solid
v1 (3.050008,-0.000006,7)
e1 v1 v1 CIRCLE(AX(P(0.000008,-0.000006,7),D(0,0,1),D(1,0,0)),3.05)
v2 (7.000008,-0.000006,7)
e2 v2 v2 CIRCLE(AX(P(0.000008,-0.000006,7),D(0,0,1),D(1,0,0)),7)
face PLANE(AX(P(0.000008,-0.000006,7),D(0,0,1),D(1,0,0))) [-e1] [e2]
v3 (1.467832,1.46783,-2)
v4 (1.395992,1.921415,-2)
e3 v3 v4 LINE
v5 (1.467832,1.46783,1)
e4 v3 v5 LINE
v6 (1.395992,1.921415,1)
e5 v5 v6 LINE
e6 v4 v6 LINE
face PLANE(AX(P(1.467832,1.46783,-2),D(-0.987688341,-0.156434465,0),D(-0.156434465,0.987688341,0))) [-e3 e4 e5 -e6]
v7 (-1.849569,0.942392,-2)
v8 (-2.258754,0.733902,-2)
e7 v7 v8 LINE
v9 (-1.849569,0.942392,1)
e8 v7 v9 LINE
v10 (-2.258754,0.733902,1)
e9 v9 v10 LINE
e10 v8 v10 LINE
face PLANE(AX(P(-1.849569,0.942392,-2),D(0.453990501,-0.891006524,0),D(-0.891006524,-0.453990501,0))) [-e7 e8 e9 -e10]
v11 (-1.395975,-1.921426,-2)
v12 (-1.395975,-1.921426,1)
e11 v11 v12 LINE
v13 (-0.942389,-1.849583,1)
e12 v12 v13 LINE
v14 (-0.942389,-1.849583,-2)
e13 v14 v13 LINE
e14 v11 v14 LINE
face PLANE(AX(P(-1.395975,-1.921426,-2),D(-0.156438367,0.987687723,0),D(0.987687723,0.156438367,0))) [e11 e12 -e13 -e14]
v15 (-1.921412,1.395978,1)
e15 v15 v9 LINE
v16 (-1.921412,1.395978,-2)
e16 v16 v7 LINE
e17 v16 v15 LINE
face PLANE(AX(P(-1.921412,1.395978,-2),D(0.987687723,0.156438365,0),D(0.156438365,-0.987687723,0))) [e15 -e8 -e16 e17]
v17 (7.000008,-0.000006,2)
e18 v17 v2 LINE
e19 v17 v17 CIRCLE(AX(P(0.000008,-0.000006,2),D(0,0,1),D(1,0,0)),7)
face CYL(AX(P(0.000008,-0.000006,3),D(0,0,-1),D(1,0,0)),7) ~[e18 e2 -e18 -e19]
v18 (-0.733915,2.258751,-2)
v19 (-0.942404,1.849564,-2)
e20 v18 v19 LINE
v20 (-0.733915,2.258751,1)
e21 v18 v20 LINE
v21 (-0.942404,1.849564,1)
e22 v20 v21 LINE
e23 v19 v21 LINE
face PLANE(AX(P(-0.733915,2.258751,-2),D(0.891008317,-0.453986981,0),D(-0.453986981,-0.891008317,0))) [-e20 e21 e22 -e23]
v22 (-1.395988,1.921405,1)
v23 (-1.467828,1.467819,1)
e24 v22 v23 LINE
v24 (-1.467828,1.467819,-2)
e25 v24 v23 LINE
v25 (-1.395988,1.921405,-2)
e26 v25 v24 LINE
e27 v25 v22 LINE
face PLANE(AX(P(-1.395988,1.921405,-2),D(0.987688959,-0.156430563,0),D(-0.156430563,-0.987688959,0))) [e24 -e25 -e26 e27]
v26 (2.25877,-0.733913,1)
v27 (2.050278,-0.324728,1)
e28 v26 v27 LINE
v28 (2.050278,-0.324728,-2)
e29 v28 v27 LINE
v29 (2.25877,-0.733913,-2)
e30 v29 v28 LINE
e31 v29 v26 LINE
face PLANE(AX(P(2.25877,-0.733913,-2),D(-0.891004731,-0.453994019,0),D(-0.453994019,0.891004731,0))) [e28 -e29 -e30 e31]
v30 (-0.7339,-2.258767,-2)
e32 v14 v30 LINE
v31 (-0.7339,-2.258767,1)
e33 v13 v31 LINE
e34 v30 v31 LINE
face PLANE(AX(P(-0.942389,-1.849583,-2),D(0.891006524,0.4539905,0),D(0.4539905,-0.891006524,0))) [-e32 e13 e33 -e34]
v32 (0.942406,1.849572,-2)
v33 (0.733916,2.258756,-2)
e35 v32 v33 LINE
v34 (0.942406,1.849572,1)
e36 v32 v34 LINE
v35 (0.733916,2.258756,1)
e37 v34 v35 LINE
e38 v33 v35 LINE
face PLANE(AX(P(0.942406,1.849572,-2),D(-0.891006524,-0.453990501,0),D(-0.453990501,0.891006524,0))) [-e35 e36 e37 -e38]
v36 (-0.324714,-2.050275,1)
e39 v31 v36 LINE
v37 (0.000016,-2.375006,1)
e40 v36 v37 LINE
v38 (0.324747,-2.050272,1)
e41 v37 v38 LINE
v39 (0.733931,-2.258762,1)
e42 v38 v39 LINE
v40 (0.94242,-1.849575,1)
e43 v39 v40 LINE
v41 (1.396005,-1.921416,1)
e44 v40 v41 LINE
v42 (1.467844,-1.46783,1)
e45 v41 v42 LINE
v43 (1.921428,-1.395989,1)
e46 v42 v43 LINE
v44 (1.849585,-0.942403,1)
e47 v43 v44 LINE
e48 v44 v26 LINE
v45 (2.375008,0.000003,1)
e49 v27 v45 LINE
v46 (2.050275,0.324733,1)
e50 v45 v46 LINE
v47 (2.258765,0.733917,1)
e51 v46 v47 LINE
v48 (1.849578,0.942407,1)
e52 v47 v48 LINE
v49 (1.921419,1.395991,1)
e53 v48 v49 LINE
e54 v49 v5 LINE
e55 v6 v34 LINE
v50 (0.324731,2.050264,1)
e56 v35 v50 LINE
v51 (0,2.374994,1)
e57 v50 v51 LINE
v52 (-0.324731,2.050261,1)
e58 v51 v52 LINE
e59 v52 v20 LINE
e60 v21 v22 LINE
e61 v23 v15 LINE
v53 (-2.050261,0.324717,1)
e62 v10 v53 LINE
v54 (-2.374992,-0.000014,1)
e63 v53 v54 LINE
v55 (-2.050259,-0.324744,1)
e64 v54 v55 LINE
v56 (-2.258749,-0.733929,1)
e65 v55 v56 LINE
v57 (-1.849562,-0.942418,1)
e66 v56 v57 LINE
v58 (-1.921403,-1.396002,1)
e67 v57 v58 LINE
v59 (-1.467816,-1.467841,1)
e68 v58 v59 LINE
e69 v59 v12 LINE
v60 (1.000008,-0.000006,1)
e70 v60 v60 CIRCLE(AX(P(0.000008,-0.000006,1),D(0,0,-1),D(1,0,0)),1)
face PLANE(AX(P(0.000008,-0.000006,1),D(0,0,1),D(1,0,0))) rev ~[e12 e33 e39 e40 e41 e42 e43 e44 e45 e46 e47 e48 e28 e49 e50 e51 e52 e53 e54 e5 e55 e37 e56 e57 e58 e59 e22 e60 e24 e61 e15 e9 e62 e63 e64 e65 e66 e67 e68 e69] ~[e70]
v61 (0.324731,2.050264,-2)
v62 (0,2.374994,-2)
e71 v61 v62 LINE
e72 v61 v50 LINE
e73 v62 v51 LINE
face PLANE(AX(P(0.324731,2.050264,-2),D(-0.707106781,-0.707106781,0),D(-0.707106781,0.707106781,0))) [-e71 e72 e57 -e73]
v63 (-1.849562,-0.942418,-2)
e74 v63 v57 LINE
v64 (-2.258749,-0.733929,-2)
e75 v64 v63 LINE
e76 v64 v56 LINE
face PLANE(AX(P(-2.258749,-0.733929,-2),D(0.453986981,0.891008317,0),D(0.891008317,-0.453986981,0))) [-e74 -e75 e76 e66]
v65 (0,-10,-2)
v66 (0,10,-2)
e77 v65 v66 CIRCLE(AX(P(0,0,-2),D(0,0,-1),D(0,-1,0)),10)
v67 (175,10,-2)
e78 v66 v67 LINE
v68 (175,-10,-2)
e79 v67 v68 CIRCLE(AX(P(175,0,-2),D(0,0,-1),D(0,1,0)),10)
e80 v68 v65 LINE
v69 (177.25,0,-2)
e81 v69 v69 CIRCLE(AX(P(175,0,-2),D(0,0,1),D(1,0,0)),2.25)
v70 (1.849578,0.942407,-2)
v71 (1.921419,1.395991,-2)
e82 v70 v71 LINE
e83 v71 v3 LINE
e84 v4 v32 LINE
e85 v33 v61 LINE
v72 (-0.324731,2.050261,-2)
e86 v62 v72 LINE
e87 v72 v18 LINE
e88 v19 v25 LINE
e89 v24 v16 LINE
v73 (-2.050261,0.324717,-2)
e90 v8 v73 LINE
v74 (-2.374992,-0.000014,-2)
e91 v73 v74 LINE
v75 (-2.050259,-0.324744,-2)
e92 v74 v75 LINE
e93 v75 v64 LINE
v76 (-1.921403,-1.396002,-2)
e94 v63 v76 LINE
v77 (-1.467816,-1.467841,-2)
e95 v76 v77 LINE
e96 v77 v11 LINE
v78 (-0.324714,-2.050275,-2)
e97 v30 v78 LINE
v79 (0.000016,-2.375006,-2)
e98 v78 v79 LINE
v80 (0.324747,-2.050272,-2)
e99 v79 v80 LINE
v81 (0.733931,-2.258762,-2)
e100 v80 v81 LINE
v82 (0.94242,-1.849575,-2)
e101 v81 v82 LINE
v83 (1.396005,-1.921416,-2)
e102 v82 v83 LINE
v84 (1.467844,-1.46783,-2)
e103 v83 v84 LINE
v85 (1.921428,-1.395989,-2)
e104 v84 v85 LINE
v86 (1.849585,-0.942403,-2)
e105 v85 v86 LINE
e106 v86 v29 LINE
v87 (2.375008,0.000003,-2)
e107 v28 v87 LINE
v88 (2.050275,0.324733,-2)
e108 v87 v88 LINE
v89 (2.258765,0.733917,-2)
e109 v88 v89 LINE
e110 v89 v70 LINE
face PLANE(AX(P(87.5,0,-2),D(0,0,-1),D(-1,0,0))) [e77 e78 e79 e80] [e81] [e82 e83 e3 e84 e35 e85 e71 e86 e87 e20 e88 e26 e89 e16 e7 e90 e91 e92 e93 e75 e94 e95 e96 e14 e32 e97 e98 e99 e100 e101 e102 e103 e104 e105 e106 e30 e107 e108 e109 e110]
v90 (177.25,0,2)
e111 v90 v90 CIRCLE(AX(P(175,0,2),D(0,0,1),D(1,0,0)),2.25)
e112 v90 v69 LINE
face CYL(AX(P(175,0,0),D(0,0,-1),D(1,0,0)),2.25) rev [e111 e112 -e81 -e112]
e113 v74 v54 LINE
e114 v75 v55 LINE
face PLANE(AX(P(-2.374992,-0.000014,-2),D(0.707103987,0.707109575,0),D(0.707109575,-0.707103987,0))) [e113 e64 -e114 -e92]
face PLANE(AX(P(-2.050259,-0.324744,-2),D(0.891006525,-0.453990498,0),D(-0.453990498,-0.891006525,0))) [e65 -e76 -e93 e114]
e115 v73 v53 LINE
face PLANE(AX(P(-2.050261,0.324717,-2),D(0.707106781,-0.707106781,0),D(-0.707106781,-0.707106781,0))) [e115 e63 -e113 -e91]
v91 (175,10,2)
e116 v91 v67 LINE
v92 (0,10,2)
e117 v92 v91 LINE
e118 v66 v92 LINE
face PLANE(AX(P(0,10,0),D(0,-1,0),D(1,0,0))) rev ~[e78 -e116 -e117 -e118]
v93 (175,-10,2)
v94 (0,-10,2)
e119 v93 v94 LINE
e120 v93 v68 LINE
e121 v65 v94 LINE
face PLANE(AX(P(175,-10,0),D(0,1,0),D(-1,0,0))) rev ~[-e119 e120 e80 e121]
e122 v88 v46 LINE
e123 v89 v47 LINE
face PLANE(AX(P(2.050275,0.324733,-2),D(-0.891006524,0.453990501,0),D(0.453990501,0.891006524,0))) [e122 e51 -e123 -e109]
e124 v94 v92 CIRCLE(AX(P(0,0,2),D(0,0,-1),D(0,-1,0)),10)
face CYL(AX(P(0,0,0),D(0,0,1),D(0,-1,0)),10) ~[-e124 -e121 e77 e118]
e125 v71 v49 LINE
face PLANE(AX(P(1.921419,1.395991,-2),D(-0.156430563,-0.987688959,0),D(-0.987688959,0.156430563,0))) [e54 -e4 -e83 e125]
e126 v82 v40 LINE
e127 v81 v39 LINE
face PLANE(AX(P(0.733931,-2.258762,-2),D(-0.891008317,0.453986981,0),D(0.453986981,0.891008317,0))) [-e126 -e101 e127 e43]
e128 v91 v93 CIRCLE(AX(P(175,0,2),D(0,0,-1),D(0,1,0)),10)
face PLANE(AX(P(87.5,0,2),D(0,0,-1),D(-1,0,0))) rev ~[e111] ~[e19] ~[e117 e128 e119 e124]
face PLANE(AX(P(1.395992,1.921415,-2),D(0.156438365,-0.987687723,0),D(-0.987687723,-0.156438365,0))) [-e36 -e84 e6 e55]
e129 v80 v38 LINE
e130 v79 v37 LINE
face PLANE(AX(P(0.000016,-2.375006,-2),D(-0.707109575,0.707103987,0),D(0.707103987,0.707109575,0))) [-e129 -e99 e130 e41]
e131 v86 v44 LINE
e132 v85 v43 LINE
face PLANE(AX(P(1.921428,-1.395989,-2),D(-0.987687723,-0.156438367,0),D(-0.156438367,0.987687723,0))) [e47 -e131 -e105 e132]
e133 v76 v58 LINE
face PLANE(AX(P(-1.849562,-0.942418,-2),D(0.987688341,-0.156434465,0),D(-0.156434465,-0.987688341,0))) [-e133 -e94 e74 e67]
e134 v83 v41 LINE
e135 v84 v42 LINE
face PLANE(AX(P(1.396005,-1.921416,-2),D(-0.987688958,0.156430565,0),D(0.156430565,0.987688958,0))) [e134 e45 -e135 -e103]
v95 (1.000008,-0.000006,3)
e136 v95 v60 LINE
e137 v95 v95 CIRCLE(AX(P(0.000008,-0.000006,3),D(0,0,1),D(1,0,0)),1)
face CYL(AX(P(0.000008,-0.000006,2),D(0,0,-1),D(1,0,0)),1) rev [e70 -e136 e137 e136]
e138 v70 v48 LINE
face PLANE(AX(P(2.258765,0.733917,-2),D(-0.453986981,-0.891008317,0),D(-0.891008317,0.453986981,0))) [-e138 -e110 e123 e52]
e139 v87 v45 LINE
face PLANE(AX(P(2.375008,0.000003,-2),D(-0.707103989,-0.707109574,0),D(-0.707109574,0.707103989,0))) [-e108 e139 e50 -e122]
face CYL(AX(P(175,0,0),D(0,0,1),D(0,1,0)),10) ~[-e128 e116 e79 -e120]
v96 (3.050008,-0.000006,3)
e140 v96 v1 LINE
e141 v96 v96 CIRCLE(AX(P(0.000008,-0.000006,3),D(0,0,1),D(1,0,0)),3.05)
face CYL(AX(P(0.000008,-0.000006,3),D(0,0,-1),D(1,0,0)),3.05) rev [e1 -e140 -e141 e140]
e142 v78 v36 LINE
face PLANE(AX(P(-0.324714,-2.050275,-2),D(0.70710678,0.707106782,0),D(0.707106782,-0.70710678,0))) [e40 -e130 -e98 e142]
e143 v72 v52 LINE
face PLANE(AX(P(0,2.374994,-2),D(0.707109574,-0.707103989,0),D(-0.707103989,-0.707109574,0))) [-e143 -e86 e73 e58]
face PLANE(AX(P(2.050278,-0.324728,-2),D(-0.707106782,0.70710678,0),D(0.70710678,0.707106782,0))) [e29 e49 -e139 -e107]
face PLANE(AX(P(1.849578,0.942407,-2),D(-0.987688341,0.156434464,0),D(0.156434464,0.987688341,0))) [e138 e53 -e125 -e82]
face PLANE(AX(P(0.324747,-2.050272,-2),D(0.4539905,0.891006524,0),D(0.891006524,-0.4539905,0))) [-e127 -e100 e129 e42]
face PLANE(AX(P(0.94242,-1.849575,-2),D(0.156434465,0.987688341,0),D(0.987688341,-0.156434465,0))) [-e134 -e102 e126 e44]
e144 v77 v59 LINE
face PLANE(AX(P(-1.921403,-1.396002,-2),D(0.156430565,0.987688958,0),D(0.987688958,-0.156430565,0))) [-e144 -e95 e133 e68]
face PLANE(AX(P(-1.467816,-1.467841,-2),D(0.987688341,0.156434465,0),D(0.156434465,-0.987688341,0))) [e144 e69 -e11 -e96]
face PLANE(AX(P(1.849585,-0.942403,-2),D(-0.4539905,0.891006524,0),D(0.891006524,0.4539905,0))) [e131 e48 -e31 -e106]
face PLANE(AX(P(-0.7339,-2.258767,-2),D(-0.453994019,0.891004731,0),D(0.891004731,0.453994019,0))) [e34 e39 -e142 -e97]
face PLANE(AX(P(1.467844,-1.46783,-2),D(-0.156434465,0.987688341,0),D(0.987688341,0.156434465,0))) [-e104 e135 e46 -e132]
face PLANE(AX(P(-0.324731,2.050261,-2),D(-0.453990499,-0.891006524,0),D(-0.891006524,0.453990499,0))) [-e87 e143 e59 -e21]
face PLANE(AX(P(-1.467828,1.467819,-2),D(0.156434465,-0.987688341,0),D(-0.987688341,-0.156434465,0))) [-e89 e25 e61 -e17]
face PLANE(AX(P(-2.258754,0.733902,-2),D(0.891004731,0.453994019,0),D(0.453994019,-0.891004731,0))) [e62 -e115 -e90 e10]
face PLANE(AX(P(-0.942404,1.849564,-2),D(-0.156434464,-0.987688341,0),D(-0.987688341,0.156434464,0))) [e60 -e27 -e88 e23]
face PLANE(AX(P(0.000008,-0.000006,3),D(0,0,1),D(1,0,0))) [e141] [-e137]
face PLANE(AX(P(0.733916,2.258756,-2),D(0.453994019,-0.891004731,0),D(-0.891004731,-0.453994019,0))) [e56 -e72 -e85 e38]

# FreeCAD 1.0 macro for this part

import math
import FreeCAD as App
import Part
import Sketcher

V = App.Vector
Q = App.Units.Quantity


def add_polygon(sketch, points):
    """Adds a closed chain of lines whose ends are joined by coincident constraints."""
    first, n = sketch.GeometryCount, len(points)
    for a, b in zip(points, points[1:] + points[:1]):
        sketch.addGeometry(Part.LineSegment(App.Vector(*a, 0), App.Vector(*b, 0)), False)
    for i in range(n):
        sketch.addConstraint(Sketcher.Constraint("Coincident", first + i, 2, first + (i + 1) % n, 1))

doc = App.newDocument("Part")
params = doc.addObject("Spreadsheet::Sheet", "Params")
for row, (alias, value) in enumerate([
    ("sketch1_diameter", "2 mm"),
    ("sketch1_radius", "10 mm"),
    ("sketch1_diameter2", "4.5 mm"),
    ("sketch1_width", "175 mm"),
    ("pad1_length", "4 mm"),
    ("sketch2_diameter", "14 mm"),
    ("sketch2_diameter2", "2 mm"),
    ("pad2_length", "1 mm"),
    ("sketch3_diameter", "14 mm"),
    ("sketch3_diameter2", "6.1 mm"),
    ("pad3_length", "4 mm"),
    ("pocket1_length", "3 mm"),
], start=1):
    params.set(f"A{row}", alias)
    params.set(f"B{row}", "=" + value)
    params.setAlias(f"B{row}", alias)

body = doc.addObject("PartDesign::Body", "Body")

# Sketch on XY plane
sketch1 = doc.addObject("Sketcher::SketchObject", "Sketch")
body.addObject(sketch1)
sketch1.AttachmentSupport = (doc.XY_Plane, [""])
sketch1.MapMode = "FlatFace"
sketch1.addGeometry([
    Part.LineSegment(V(175, 10, 0), V(0, 10, 0)),  # 0
    Part.ArcOfCircle(Part.Circle(V(0, 0, 0), V(0, 0, 1), 10), math.radians(90), math.radians(270)),  # 1
    Part.LineSegment(V(0, -10, 0), V(175, -10, 0)),  # 2
    Part.ArcOfCircle(Part.Circle(V(175, 0, 0), V(0, 0, 1), 10), math.radians(-90), math.radians(90)),  # 3
    Part.Circle(V(0, 0, 0), V(0, 0, 1), 1),  # 4
    Part.Circle(V(175, 0, 0), V(0, 0, 1), 2.2),  # 5
], False)
sketch1.addConstraint([
    Sketcher.Constraint("Tangent", 0, 2, 1, 1),
    Sketcher.Constraint("Tangent", 1, 2, 2, 1),
    Sketcher.Constraint("Tangent", 2, 2, 3, 1),
    Sketcher.Constraint("Tangent", 3, 2, 0, 1),
    Sketcher.Constraint("Horizontal", 0),
    Sketcher.Constraint("Horizontal", 2),
    Sketcher.Constraint("Coincident", 1, 3, -1, 1),
    Sketcher.Constraint("Coincident", 4, 3, -1, 1),
    Sketcher.Constraint("Coincident", 5, 3, 3, 3),
    Sketcher.Constraint("Diameter", 4, Q("2 mm")),
    Sketcher.Constraint("Radius", 1, Q("10 mm")),
    Sketcher.Constraint("Diameter", 5, Q("4.5 mm")),
    Sketcher.Constraint("DistanceX", 0, 2, 0, 1, Q("175 mm")),
])
sketch1.setExpression("Constraints[9]", "Params.sketch1_diameter")
sketch1.setExpression("Constraints[10]", "Params.sketch1_radius")
sketch1.setExpression("Constraints[11]", "Params.sketch1_diameter2")
sketch1.setExpression("Constraints[12]", "Params.sketch1_width")
pad1 = doc.addObject("PartDesign::Pad", "Pad")
body.addObject(pad1)
pad1.Profile = sketch1
pad1.setExpression("Length", "Params.pad1_length")
pad1.Midplane = True

# Sketch on XY plane
sketch2 = doc.addObject("Sketcher::SketchObject", "Sketch001")
body.addObject(sketch2)
sketch2.AttachmentSupport = (doc.XY_Plane, [""])
sketch2.MapMode = "FlatFace"
sketch2.AttachmentOffset = App.Placement(V(0, 0, 2), App.Rotation())
sketch2.addGeometry([
    Part.Circle(V(0, 0, 0), V(0, 0, 1), 7),
    Part.Circle(V(0, 0, 0), V(0, 0, 1), 1),
], False)
sketch2.addConstraint([
    Sketcher.Constraint("Coincident", 0, 3, -1, 1),
    Sketcher.Constraint("Coincident", 1, 3, -1, 1),
    Sketcher.Constraint("Diameter", 0, Q("14 mm")),
    Sketcher.Constraint("Diameter", 1, Q("2 mm")),
])
sketch2.setExpression("Constraints[2]", "Params.sketch2_diameter")
sketch2.setExpression("Constraints[3]", "Params.sketch2_diameter2")
pad2 = doc.addObject("PartDesign::Pad", "Pad001")
body.addObject(pad2)
pad2.Profile = sketch2
pad2.setExpression("Length", "Params.pad2_length")

# Sketch on XY plane
sketch3 = doc.addObject("Sketcher::SketchObject", "Sketch002")
body.addObject(sketch3)
sketch3.AttachmentSupport = (doc.XY_Plane, [""])
sketch3.MapMode = "FlatFace"
sketch3.AttachmentOffset = App.Placement(V(0, 0, 3), App.Rotation())
sketch3.addGeometry([
    Part.Circle(V(0, 0, 0), V(0, 0, 1), 7),
    Part.Circle(V(0, 0, 0), V(0, 0, 1), 3),
], False)
sketch3.addConstraint([
    Sketcher.Constraint("Coincident", 0, 3, -1, 1),
    Sketcher.Constraint("Coincident", 1, 3, -1, 1),
    Sketcher.Constraint("Diameter", 0, Q("14 mm")),
    Sketcher.Constraint("Diameter", 1, Q("6.1 mm")),
])
sketch3.setExpression("Constraints[2]", "Params.sketch3_diameter")
sketch3.setExpression("Constraints[3]", "Params.sketch3_diameter2")
pad3 = doc.addObject("PartDesign::Pad", "Pad002")
body.addObject(pad3)
pad3.Profile = sketch3
pad3.setExpression("Length", "Params.pad3_length")

# Sketch on XY plane
sketch4 = doc.addObject("Sketcher::SketchObject", "Sketch003")
body.addObject(sketch4)
sketch4.AttachmentSupport = (doc.XY_Plane, [""])
sketch4.MapMode = "FlatFace"
sketch4.AttachmentOffset = App.Placement(V(0, 0, -2), App.Rotation())
add_polygon(sketch4, [(0, 2.37), (0.32, 2.05), (0.73, 2.26), (0.94, 1.85), (1.4, 1.92), (1.47, 1.47), (1.92, 1.4), (1.85, 0.94), (2.26, 0.73), (2.05, 0.32), (2.38, 0), (2.05, -0.32), (2.26, -0.73), (1.85, -0.94), (1.92, -1.4), (1.47, -1.47), (1.4, -1.92), (0.94, -1.85), (0.73, -2.26), (0.32, -2.05), (0, -2.38), (-0.32, -2.05), (-0.73, -2.26), (-0.94, -1.85), (-1.4, -1.92), (-1.47, -1.47), (-1.92, -1.4), (-1.85, -0.94), (-2.26, -0.73), (-2.05, -0.32), (-2.37, 0), (-2.05, 0.32), (-2.26, 0.73), (-1.85, 0.94), (-1.92, 1.4), (-1.47, 1.47), (-1.4, 1.92), (-0.94, 1.85), (-0.73, 2.26), (-0.32, 2.05)])  # lines 0-39
sketch4.addConstraint([
    Sketcher.Constraint("Symmetric", 2, 2, 36, 2, -2),
    Sketcher.Constraint("Symmetric", 1, 2, 37, 2, -2),
    Sketcher.Constraint("Symmetric", 0, 2, 38, 2, -2),
    Sketcher.Constraint("Symmetric", 8, 2, 10, 2, -1),
    Sketcher.Constraint("Symmetric", 7, 2, 11, 2, -1),
    Sketcher.Constraint("Symmetric", 6, 2, 12, 2, -1),
    Sketcher.Constraint("Symmetric", 5, 2, 13, 2, -1),
    Sketcher.Constraint("PointOnObject", 39, 2, -2),
    Sketcher.Constraint("Perpendicular", 0, 10),
    Sketcher.Constraint("Perpendicular", 1, 11),
    Sketcher.Constraint("Perpendicular", 2, 12),
    Sketcher.Constraint("Perpendicular", 3, 13),
    Sketcher.Constraint("Perpendicular", 4, 14),
    Sketcher.Constraint("Perpendicular", 5, 15),
    Sketcher.Constraint("Perpendicular", 6, 16),
    Sketcher.Constraint("Perpendicular", 7, 17),
    Sketcher.Constraint("Perpendicular", 8, 18),
    Sketcher.Constraint("Perpendicular", 9, 19),
    Sketcher.Constraint("Perpendicular", 10, 20),
    Sketcher.Constraint("Perpendicular", 11, 21),
    Sketcher.Constraint("Perpendicular", 12, 22),
    Sketcher.Constraint("Perpendicular", 13, 23),
    Sketcher.Constraint("Perpendicular", 14, 24),
    Sketcher.Constraint("Perpendicular", 15, 25),
    Sketcher.Constraint("Perpendicular", 16, 26),
    Sketcher.Constraint("Perpendicular", 17, 27),
    Sketcher.Constraint("Perpendicular", 18, 28),
    Sketcher.Constraint("Perpendicular", 19, 29),
    Sketcher.Constraint("Perpendicular", 20, 30),
    Sketcher.Constraint("Perpendicular", 21, 31),
    Sketcher.Constraint("Perpendicular", 22, 32),
    Sketcher.Constraint("Perpendicular", 23, 33),
    Sketcher.Constraint("Perpendicular", 24, 34),
    Sketcher.Constraint("Perpendicular", 25, 35),
    Sketcher.Constraint("Perpendicular", 26, 36),
    Sketcher.Constraint("Perpendicular", 29, 39),
    Sketcher.Constraint("Equal", 0, 1),
    Sketcher.Constraint("Equal", 1, 2),
    Sketcher.Constraint("Equal", 2, 3),
    Sketcher.Constraint("Equal", 3, 4),
    Sketcher.Constraint("Equal", 4, 5),
    Sketcher.Constraint("Equal", 5, 6),
    Sketcher.Constraint("Equal", 6, 7),
    Sketcher.Constraint("Equal", 7, 8),
    Sketcher.Constraint("Equal", 8, 9),
    Sketcher.Constraint("Equal", 13, 14),
    Sketcher.Constraint("Equal", 14, 15),
    Sketcher.Constraint("Equal", 15, 16),
    Sketcher.Constraint("Equal", 16, 17),
    Sketcher.Constraint("Equal", 17, 18),
    Sketcher.Constraint("Equal", 18, 19),
    Sketcher.Constraint("Equal", 19, 20),
    Sketcher.Constraint("Equal", 20, 21),
    Sketcher.Constraint("Equal", 21, 22),
    Sketcher.Constraint("Equal", 22, 23),
    Sketcher.Constraint("Equal", 23, 24),
    Sketcher.Constraint("Equal", 24, 25),
    Sketcher.Constraint("Equal", 25, 26),
    Sketcher.Constraint("Equal", 26, 27),
    Sketcher.Constraint("Equal", 27, 28),
    Sketcher.Constraint("Equal", 28, 29),
    Sketcher.Constraint("Equal", 29, 30),
    Sketcher.Constraint("Equal", 30, 31),
    Sketcher.Constraint("Equal", 31, 32),
    Sketcher.Constraint("Equal", 32, 33),
    Sketcher.Constraint("Equal", 33, 34),
    Sketcher.Constraint("Angle", 0, Q("-45 deg")),
    Sketcher.Constraint("Angle", 2, Q("-63 deg")),
    Sketcher.Constraint("Angle", 4, Q("-81 deg")),
    Sketcher.Constraint("Angle", 6, Q("-99 deg")),
    Sketcher.Constraint("Angle", 8, Q("-117 deg")),
    Sketcher.Constraint("DistanceX", 21, 2, -1, 1, Q("0.7339 mm")),
    Sketcher.Constraint("DistanceX", 0, 2, 4, 2, Q("1.143102 mm")),
])
pocket1 = doc.addObject("PartDesign::Pocket", "Pocket")
body.addObject(pocket1)
pocket1.Profile = sketch4
pocket1.setExpression("Length", "Params.pocket1_length")
pocket1.Reversed = True

doc.recompute()
